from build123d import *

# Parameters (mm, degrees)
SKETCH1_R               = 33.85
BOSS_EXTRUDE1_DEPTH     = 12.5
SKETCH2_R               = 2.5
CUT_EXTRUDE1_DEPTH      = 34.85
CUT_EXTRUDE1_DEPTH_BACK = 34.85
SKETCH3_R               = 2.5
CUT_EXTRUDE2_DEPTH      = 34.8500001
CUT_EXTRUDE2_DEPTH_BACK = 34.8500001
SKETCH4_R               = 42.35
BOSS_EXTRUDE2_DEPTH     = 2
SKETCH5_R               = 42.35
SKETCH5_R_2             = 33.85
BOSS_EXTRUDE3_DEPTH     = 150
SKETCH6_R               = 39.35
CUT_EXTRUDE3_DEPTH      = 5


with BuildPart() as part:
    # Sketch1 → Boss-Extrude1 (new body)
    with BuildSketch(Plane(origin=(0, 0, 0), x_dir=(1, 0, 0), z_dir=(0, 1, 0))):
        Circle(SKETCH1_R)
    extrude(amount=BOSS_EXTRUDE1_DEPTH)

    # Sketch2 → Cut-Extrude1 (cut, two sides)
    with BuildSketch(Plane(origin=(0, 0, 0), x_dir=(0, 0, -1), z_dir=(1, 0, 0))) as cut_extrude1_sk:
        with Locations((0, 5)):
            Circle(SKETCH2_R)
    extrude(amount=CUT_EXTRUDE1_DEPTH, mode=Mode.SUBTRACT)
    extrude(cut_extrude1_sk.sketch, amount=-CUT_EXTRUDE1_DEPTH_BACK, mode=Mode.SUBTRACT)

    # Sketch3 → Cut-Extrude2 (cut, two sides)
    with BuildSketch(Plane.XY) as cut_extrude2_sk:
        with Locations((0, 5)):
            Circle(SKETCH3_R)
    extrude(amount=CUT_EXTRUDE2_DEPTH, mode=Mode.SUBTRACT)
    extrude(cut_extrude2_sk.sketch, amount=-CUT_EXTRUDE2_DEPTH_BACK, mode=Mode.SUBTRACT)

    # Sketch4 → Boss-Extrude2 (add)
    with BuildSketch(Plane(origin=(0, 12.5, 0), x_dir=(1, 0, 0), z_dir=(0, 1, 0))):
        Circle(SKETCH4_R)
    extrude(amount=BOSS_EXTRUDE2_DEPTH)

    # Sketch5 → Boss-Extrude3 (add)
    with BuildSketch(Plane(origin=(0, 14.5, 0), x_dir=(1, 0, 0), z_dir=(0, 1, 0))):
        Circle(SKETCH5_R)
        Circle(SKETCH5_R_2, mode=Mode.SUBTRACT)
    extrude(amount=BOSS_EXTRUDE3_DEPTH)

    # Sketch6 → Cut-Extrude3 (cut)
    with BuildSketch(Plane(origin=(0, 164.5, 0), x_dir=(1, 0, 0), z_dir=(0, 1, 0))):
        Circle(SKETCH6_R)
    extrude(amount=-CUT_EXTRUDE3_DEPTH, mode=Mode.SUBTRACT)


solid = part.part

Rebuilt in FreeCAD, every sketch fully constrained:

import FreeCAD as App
import Part
import Sketcher
from FreeCAD import Vector

doc = App.newDocument("Part")
body = doc.addObject("PartDesign::Body", "Body")

# Sketch on XZ plane
sketch1 = body.newObject("Sketcher::SketchObject", "Sketch")
sketch1.AttachmentSupport = (doc.getObject("XZ_Plane"), [""])
sketch1.MapMode = "FlatFace"
sketch1.addGeometry(Part.Circle(Vector(0, 0, 0), Vector(0, 0, 1), 34), False)
sketch1.addConstraint(Sketcher.Constraint("Coincident", 0, 3, -1, 1))
sketch1.addConstraint(Sketcher.Constraint("Diameter", 0, 67.7))
pad1 = body.newObject("PartDesign::Pad", "Pad")
pad1.Profile = sketch1
pad1.Length = 12.5
pad1.Reversed = True

# Sketch on YZ plane
sketch2 = body.newObject("Sketcher::SketchObject", "Sketch001")
sketch2.AttachmentSupport = (doc.getObject("YZ_Plane"), [""])
sketch2.MapMode = "FlatFace"
sketch2.addGeometry(Part.Circle(Vector(5, 0, 0), Vector(0, 0, 1), 2.5), False)
sketch2.addConstraint(Sketcher.Constraint("PointOnObject", 0, 3, -1))
sketch2.addConstraint(Sketcher.Constraint("Diameter", 0, 5.0))
sketch2.addConstraint(Sketcher.Constraint("DistanceX", -1, 1, 0, 3, 5.0))
pocket1 = body.newObject("PartDesign::Pocket", "Pocket")
pocket1.Profile = sketch2
pocket1.Type = "ThroughAll"
pocket1.Midplane = True

# Sketch on XY plane
sketch3 = body.newObject("Sketcher::SketchObject", "Sketch002")
sketch3.AttachmentSupport = (doc.getObject("XY_Plane"), [""])
sketch3.MapMode = "FlatFace"
sketch3.addGeometry(Part.Circle(Vector(0, 5, 0), Vector(0, 0, 1), 2.5), False)
sketch3.addConstraint(Sketcher.Constraint("PointOnObject", 0, 3, -2))
sketch3.addConstraint(Sketcher.Constraint("Diameter", 0, 5.0))
sketch3.addConstraint(Sketcher.Constraint("DistanceY", -1, 1, 0, 3, 5.0))
pocket2 = body.newObject("PartDesign::Pocket", "Pocket001")
pocket2.Profile = sketch3
pocket2.Type = "ThroughAll"
pocket2.Midplane = True

# Sketch on XZ plane
sketch4 = body.newObject("Sketcher::SketchObject", "Sketch003")
sketch4.AttachmentSupport = (doc.getObject("XZ_Plane"), [""])
sketch4.MapMode = "FlatFace"
sketch4.AttachmentOffset = App.Placement(Vector(0, 0, -12.5), App.Rotation())
sketch4.addGeometry(Part.Circle(Vector(0, 0, 0), Vector(0, 0, 1), 42), False)
sketch4.addConstraint(Sketcher.Constraint("Coincident", 0, 3, -1, 1))
sketch4.addConstraint(Sketcher.Constraint("Diameter", 0, 84.7))
pad2 = body.newObject("PartDesign::Pad", "Pad001")
pad2.Profile = sketch4
pad2.Length = 2
pad2.Reversed = True

# Sketch on XZ plane
sketch5 = body.newObject("Sketcher::SketchObject", "Sketch004")
sketch5.AttachmentSupport = (doc.getObject("XZ_Plane"), [""])
sketch5.MapMode = "FlatFace"
sketch5.AttachmentOffset = App.Placement(Vector(0, 0, -14.5), App.Rotation())
sketch5.addGeometry(Part.Circle(Vector(0, 0, 0), Vector(0, 0, 1), 42), False)
sketch5.addGeometry(Part.Circle(Vector(0, 0, 0), Vector(0, 0, 1), 34), False)
sketch5.addConstraint(Sketcher.Constraint("Coincident", 0, 3, -1, 1))
sketch5.addConstraint(Sketcher.Constraint("Coincident", 1, 3, -1, 1))
sketch5.addConstraint(Sketcher.Constraint("Diameter", 0, 84.7))
sketch5.addConstraint(Sketcher.Constraint("Diameter", 1, 67.7))
pad3 = body.newObject("PartDesign::Pad", "Pad002")
pad3.Profile = sketch5
pad3.Length = 150
pad3.Reversed = True

# Sketch on XZ plane
sketch6 = body.newObject("Sketcher::SketchObject", "Sketch005")
sketch6.AttachmentSupport = (doc.getObject("XZ_Plane"), [""])
sketch6.MapMode = "FlatFace"
sketch6.AttachmentOffset = App.Placement(Vector(0, 0, -164.5), App.Rotation())
sketch6.addGeometry(Part.Circle(Vector(0, 0, 0), Vector(0, 0, 1), 39), False)
sketch6.addConstraint(Sketcher.Constraint("Coincident", 0, 3, -1, 1))
sketch6.addConstraint(Sketcher.Constraint("Diameter", 0, 78.7))
pocket3 = body.newObject("PartDesign::Pocket", "Pocket002")
pocket3.Profile = sketch6
pocket3.Length = 5
pocket3.Reversed = True

doc.recompute()
